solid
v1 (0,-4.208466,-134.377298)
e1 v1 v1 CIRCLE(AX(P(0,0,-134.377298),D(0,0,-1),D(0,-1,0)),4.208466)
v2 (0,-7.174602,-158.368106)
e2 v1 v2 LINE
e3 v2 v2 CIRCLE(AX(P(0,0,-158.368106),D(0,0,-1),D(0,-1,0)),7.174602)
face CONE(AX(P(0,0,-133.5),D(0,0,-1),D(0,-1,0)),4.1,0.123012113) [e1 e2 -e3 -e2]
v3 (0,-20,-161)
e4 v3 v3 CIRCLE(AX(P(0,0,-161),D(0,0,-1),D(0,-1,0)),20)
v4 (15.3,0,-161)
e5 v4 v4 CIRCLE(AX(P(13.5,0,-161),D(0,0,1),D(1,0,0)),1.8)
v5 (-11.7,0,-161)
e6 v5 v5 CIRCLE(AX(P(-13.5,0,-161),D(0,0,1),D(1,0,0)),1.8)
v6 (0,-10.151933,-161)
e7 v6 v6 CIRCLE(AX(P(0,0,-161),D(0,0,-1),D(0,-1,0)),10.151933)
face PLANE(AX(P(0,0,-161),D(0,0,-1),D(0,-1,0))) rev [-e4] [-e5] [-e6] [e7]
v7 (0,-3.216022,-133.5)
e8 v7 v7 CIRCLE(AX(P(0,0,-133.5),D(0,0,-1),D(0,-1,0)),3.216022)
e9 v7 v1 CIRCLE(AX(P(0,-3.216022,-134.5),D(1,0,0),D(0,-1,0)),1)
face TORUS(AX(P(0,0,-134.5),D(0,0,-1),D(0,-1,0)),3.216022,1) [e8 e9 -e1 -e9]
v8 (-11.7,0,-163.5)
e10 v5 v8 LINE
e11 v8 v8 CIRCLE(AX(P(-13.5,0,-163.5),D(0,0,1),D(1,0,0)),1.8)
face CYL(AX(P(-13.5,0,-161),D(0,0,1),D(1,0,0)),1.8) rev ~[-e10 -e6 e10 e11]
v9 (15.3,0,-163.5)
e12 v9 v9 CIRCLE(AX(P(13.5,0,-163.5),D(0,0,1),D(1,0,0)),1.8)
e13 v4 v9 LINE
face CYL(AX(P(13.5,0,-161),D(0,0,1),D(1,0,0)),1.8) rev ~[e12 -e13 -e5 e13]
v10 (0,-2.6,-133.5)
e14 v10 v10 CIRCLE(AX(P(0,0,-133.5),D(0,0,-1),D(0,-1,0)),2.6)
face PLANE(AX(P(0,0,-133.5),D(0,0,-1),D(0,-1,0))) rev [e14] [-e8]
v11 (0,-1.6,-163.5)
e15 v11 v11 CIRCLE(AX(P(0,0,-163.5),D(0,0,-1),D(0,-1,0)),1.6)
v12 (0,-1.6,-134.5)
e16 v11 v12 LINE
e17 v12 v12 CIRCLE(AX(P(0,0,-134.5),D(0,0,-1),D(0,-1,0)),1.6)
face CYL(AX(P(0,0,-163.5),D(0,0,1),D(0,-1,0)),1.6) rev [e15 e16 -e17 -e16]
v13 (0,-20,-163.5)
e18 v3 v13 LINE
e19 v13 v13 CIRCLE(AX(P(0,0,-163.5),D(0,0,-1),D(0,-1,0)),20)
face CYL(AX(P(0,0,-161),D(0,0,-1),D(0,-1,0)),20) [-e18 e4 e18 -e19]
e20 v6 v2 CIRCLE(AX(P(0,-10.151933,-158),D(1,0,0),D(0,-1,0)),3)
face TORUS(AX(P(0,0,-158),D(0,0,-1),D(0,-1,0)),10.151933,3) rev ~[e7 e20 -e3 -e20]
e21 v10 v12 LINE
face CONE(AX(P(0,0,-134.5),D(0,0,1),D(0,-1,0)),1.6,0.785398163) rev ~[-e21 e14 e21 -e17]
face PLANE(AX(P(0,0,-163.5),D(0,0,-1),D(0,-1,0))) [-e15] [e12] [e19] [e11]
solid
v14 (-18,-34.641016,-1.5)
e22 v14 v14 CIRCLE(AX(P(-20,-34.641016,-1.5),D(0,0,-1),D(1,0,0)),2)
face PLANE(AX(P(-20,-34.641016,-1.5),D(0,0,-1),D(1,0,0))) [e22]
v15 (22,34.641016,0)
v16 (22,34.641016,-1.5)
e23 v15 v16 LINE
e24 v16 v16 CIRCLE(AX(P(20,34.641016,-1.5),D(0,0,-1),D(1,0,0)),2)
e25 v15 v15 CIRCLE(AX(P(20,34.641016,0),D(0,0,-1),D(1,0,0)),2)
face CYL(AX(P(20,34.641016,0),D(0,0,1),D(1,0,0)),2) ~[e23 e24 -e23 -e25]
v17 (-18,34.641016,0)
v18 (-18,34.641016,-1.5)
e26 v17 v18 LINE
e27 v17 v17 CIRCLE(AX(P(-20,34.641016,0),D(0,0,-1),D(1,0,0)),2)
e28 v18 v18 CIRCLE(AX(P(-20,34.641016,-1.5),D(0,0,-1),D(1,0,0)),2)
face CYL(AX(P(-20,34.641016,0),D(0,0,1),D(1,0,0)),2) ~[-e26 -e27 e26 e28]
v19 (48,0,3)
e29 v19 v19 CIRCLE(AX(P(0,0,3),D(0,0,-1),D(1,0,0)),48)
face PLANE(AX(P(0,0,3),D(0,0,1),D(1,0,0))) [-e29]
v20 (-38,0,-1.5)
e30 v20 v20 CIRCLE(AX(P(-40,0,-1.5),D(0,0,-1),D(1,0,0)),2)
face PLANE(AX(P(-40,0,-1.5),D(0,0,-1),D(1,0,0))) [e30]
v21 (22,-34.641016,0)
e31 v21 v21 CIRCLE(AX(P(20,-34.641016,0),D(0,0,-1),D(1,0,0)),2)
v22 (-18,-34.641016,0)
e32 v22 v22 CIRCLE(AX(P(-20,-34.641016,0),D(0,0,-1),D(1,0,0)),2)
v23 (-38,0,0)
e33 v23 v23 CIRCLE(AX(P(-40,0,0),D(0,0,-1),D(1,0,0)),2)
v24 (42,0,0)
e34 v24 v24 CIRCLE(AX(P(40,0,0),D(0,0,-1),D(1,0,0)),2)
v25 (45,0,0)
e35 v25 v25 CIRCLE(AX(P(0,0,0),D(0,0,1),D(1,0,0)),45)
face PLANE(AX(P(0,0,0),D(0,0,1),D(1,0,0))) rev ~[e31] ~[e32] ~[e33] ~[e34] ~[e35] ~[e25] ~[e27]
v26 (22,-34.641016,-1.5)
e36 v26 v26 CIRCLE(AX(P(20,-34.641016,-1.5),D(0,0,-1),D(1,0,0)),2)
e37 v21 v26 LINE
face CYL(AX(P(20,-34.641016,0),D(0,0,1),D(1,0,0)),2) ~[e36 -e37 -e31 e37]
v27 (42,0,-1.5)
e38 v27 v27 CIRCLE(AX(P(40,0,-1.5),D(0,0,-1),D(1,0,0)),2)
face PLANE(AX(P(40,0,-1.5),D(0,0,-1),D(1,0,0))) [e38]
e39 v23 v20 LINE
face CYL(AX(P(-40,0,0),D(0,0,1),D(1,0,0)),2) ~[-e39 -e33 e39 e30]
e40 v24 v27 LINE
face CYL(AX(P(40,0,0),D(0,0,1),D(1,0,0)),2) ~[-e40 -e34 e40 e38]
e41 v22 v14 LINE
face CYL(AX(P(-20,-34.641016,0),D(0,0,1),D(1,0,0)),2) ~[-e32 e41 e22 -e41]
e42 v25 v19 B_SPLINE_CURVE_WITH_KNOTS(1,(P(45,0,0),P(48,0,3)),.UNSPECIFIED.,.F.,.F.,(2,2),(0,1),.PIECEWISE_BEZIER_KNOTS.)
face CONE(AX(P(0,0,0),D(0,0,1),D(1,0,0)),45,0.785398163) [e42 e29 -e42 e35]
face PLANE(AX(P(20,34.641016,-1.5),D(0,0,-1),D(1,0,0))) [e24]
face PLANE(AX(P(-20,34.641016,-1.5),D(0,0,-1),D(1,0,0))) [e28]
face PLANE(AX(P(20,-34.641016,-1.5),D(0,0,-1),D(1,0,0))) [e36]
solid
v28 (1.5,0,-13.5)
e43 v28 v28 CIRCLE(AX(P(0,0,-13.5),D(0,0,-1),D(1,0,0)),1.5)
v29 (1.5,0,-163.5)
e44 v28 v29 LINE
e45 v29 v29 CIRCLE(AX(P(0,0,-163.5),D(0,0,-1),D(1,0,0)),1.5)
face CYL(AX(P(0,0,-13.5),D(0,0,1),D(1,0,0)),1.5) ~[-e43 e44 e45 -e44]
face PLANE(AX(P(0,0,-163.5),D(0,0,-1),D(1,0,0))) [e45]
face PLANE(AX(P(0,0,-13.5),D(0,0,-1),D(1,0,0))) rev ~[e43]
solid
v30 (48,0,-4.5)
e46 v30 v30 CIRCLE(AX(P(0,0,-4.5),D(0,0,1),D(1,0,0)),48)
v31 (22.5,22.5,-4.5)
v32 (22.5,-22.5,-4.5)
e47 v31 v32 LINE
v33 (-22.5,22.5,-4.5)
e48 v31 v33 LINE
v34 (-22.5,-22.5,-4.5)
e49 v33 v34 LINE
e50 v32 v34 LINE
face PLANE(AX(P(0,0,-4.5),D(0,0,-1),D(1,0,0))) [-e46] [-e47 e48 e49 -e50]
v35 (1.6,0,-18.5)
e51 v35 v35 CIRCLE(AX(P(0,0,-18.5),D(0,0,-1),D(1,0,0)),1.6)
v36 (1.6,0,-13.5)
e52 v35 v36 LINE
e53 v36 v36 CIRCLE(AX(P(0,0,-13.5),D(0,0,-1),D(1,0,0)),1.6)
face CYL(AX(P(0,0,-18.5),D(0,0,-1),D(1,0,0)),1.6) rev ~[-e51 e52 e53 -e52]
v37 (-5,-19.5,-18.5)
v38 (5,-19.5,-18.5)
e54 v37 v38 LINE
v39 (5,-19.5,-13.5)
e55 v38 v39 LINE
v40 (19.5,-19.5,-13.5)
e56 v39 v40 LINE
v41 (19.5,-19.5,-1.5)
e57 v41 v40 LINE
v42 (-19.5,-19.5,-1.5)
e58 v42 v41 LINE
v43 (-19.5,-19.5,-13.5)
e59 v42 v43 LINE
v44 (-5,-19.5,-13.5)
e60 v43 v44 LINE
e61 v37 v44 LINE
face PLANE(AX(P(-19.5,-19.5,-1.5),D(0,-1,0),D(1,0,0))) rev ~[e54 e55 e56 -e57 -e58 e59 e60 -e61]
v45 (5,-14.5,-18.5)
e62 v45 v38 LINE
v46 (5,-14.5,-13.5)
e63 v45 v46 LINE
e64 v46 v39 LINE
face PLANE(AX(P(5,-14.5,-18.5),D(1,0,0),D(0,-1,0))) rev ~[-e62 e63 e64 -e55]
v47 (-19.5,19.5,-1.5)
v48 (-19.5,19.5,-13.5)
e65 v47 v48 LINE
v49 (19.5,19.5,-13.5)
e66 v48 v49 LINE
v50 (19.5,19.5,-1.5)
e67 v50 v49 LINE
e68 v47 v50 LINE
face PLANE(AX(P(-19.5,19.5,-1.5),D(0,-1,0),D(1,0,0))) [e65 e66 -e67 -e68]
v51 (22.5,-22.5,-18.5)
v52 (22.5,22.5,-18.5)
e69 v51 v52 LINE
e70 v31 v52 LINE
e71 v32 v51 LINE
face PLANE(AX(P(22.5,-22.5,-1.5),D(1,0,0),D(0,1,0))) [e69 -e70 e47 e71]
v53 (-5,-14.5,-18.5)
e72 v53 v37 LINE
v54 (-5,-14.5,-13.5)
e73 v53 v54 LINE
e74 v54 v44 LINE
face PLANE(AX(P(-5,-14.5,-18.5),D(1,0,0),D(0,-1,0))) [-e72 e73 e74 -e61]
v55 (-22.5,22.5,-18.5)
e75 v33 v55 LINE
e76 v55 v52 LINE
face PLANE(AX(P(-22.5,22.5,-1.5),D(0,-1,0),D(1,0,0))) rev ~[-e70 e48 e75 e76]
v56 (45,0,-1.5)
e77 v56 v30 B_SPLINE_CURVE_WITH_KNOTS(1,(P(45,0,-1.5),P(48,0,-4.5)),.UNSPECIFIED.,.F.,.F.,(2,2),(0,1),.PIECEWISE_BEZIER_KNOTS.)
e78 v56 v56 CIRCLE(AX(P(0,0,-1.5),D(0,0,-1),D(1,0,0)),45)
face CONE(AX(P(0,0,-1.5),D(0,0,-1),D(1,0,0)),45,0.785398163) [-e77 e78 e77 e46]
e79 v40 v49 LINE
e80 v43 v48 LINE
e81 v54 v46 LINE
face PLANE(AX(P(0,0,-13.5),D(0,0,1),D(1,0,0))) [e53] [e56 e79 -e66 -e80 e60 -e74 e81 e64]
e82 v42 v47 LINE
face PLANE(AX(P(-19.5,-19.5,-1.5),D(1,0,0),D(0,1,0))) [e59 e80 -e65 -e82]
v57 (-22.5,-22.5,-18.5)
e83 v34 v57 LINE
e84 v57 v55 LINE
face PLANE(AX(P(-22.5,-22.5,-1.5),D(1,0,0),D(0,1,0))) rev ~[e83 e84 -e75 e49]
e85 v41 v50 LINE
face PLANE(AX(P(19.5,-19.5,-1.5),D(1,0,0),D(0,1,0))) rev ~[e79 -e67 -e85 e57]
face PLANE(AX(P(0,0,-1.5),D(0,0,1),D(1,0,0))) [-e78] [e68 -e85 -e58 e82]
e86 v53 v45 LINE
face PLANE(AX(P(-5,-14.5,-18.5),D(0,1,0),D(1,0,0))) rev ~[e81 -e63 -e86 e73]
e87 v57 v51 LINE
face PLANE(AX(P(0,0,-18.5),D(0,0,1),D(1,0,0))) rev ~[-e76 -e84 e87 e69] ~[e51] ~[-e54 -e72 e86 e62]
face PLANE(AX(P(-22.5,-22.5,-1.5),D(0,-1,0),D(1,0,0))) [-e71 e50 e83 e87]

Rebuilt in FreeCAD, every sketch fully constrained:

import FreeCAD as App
import Part
import Sketcher

V = App.Vector


def edges_at(feature, points):
    """Names of the edges that pass closest to the given points."""
    edges = feature.Shape.Edges
    near = lambda p: min(range(len(edges)), key=lambda i: edges[i].distToShape(Part.Vertex(*p))[0])
    return sorted({f"Edge{near(p) + 1}" for p in points})


def add_polygon(sketch, points):
    """Adds a closed chain of lines whose ends are joined by coincident constraints."""
    first, n = sketch.GeometryCount, len(points)
    for a, b in zip(points, points[1:] + points[:1]):
        sketch.addGeometry(Part.LineSegment(App.Vector(*a, 0), App.Vector(*b, 0)), False)
    for i in range(n):
        sketch.addConstraint(Sketcher.Constraint("Coincident", first + i, 2, first + (i + 1) % n, 1))

doc = App.newDocument("Part")
params = doc.addObject("Spreadsheet::Sheet", "Params")
for row, (alias, value) in enumerate([
    ("sketch1_diameter", "90 mm"),
    ("pad1_length", "3 mm"),
    ("pad1_taper", "45 deg"),
    ("sketch2_diameter", "4 mm"),
    ("pad2_length", "1.5 mm"),
    ("sketch3_diameter", "90 mm"),
    ("pad3_length", "3 mm"),
    ("pad3_taper", "45 deg"),
    ("sketch4_width", "45 mm"),
    ("pad4_length", "17 mm"),
    ("sketch5_width", "39 mm"),
    ("pocket1_length", "12 mm"),
    ("sketch6_diameter", "3.2 mm"),
    ("sketch6_width", "10 mm"),
    ("sketch6_height", "5 mm"),
    ("sketch7_diameter", "3 mm"),
    ("pad5_length", "150 mm"),
    ("sketch8_height", "30 mm"),
    ("sketch8_width", "18.4 mm"),
    ("sketch8_width2", "2.5 mm"),
    ("sketch8_width3", "12.5 mm"),
    ("revolution_angle", "360 deg"),
    ("sketch9_diameter", "3.6 mm"),
    ("fillet_radius", "3 mm"),
    ("chamfer_size", "1 mm"),
    ("fillet2_radius", "1 mm"),
], start=1):
    params.set(f"A{row}", alias)
    params.set(f"B{row}", "=" + value)
    params.setAlias(f"B{row}", alias)

body = doc.addObject("PartDesign::Body", "Body")

# Sketch on XY plane
sketch1 = body.newObject("Sketcher::SketchObject", "Sketch")
sketch1.AttachmentSupport = (doc.getObject("XY_Plane"), [""])
sketch1.MapMode = "FlatFace"
sketch1.addGeometry(Part.Circle(V(0, 0, 0), V(0, 0, 1), 45), False)
sketch1.addConstraint([
    Sketcher.Constraint("Coincident", 0, 3, -1, 1),
    Sketcher.Constraint("Diameter", 0, 90.0),
])
sketch1.setExpression("Constraints[1]", "Params.sketch1_diameter")
pad1 = body.newObject("PartDesign::Pad", "Pad")
pad1.Profile = sketch1
pad1.setExpression("Length", "Params.pad1_length")
pad1.setExpression("TaperAngle", "Params.pad1_taper")

# Sketch on XY plane
sketch2 = body.newObject("Sketcher::SketchObject", "Sketch001")
sketch2.AttachmentSupport = (doc.getObject("XY_Plane"), [""])
sketch2.MapMode = "FlatFace"
sketch2.addGeometry([
    Part.Circle(V(40, 0, 0), V(0, 0, 1), 2),  # 0
    Part.Circle(V(20, -34.641016, 0), V(0, 0, 1), 2),  # 1
    Part.Circle(V(-20, -34.641016, 0), V(0, 0, 1), 2),  # 2
    Part.Circle(V(-40, 0, 0), V(0, 0, 1), 2),  # 3
    Part.Circle(V(-20, 34.641016, 0), V(0, 0, 1), 2),  # 4
    Part.Circle(V(20, 34.641016, 0), V(0, 0, 1), 2),  # 5
], False)
sketch2.addConstraint([
    Sketcher.Constraint("Equal", 0, 1),
    Sketcher.Constraint("Equal", 1, 2),
    Sketcher.Constraint("Equal", 2, 3),
    Sketcher.Constraint("Equal", 3, 4),
    Sketcher.Constraint("Equal", 4, 5),
    Sketcher.Constraint("Symmetric", 0, 3, 3, 3, -1, 1),
    Sketcher.Constraint("Symmetric", 1, 3, 4, 3, -1, 1),
    Sketcher.Constraint("Symmetric", 2, 3, 5, 3, -1, 1),
    Sketcher.Constraint("Symmetric", 1, 3, 2, 3, -2),
    Sketcher.Constraint("PointOnObject", 0, 3, -1),
    Sketcher.Constraint("Diameter", 0, 4.0),
    Sketcher.Constraint("DistanceX", -1, 1, 0, 3, 40.0),
    Sketcher.Constraint("DistanceX", -1, 1, 1, 3, 20.0),
    Sketcher.Constraint("DistanceY", 1, 3, -1, 1, 34.641016),
])
sketch2.setExpression("Constraints[10]", "Params.sketch2_diameter")
pad2 = body.newObject("PartDesign::Pad", "Pad001")
pad2.Profile = sketch2
pad2.setExpression("Length", "Params.pad2_length")
pad2.Reversed = True
body2 = doc.addObject("PartDesign::Body", "Body001")

# Sketch on XY plane
sketch3 = body2.newObject("Sketcher::SketchObject", "Sketch002")
sketch3.AttachmentSupport = (doc.getObject("XY_Plane001"), [""])
sketch3.MapMode = "FlatFace"
sketch3.AttachmentOffset = App.Placement(V(0, 0, -1.5), App.Rotation())
sketch3.addGeometry(Part.Circle(V(0, 0, 0), V(0, 0, 1), 45), False)
sketch3.addConstraint([
    Sketcher.Constraint("Coincident", 0, 3, -1, 1),
    Sketcher.Constraint("Diameter", 0, 90.0),
])
sketch3.setExpression("Constraints[1]", "Params.sketch3_diameter")
pad3 = body2.newObject("PartDesign::Pad", "Pad002")
pad3.Profile = sketch3
pad3.setExpression("Length", "Params.pad3_length")
pad3.Reversed = True
pad3.setExpression("TaperAngle", "Params.pad3_taper")

# Sketch on XY plane
sketch4 = body2.newObject("Sketcher::SketchObject", "Sketch003")
sketch4.AttachmentSupport = (doc.getObject("XY_Plane001"), [""])
sketch4.MapMode = "FlatFace"
sketch4.AttachmentOffset = App.Placement(V(0, 0, -1.5), App.Rotation())
add_polygon(sketch4, [(-22.5, 22.5), (-22.5, -22.5), (22.5, -22.5), (22.5, 22.5)])  # lines 0-3
sketch4.addConstraint([
    Sketcher.Constraint("Vertical", 0),
    Sketcher.Constraint("Horizontal", 1),
    Sketcher.Constraint("Vertical", 2),
    Sketcher.Constraint("Horizontal", 3),
    Sketcher.Constraint("Symmetric", 0, 2, 2, 2, -1, 1),
    Sketcher.Constraint("Equal", 3, 0),
    Sketcher.Constraint("DistanceX", 1, 1, 1, 2, 45.0),
])
sketch4.setExpression("Constraints[10]", "Params.sketch4_width")
pad4 = body2.newObject("PartDesign::Pad", "Pad003")
pad4.Profile = sketch4
pad4.setExpression("Length", "Params.pad4_length")
pad4.Reversed = True

# Sketch on XY plane
sketch5 = body2.newObject("Sketcher::SketchObject", "Sketch004")
sketch5.AttachmentSupport = (doc.getObject("XY_Plane001"), [""])
sketch5.MapMode = "FlatFace"
sketch5.AttachmentOffset = App.Placement(V(0, 0, -1.5), App.Rotation())
add_polygon(sketch5, [(-19.5, 19.5), (-19.5, -19.5), (19.5, -19.5), (19.5, 19.5)])  # lines 0-3
sketch5.addConstraint([
    Sketcher.Constraint("Vertical", 0),
    Sketcher.Constraint("Horizontal", 1),
    Sketcher.Constraint("Vertical", 2),
    Sketcher.Constraint("Horizontal", 3),
    Sketcher.Constraint("Symmetric", 0, 2, 2, 2, -1, 1),
    Sketcher.Constraint("Equal", 3, 0),
    Sketcher.Constraint("DistanceX", 1, 1, 1, 2, 39.0),
])
sketch5.setExpression("Constraints[10]", "Params.sketch5_width")
pocket1 = body2.newObject("PartDesign::Pocket", "Pocket")
pocket1.Profile = sketch5
pocket1.setExpression("Length", "Params.pocket1_length")

# Sketch on XY plane
sketch6 = body2.newObject("Sketcher::SketchObject", "Sketch005")
sketch6.AttachmentSupport = (doc.getObject("XY_Plane001"), [""])
sketch6.MapMode = "FlatFace"
sketch6.AttachmentOffset = App.Placement(V(0, 0, -18.5), App.Rotation())
add_polygon(sketch6, [(-5, -19.5), (-5, -14.5), (5, -14.5), (5, -19.5)])  # lines 0-3
sketch6.addGeometry(Part.Circle(V(0, 0, 0), V(0, 0, 1), 1.6), False)  # 4
sketch6.addConstraint([
    Sketcher.Constraint("Vertical", 0),
    Sketcher.Constraint("Horizontal", 1),
    Sketcher.Constraint("Vertical", 2),
    Sketcher.Constraint("Horizontal", 3),
    Sketcher.Constraint("Coincident", 4, 3, -1, 1),
    Sketcher.Constraint("Diameter", 4, 3.2),
    Sketcher.Constraint("DistanceX", 1, 1, 1, 2, 10.0),
    Sketcher.Constraint("DistanceY", 0, 1, 0, 2, 5.0),
    Sketcher.Constraint("DistanceX", 0, 2, -1, 1, 5.0),
    Sketcher.Constraint("DistanceY", 0, 2, -1, 1, 14.5),
])
sketch6.setExpression("Constraints[9]", "Params.sketch6_diameter")
sketch6.setExpression("Constraints[10]", "Params.sketch6_width")
sketch6.setExpression("Constraints[11]", "Params.sketch6_height")
pocket2 = body2.newObject("PartDesign::Pocket", "Pocket001")
pocket2.Profile = sketch6
pocket2.Type = "ThroughAll"
pocket2.Reversed = True
body3 = doc.addObject("PartDesign::Body", "Body002")

# Sketch on XY plane
sketch7 = body3.newObject("Sketcher::SketchObject", "Sketch006")
sketch7.AttachmentSupport = (doc.getObject("XY_Plane002"), [""])
sketch7.MapMode = "FlatFace"
sketch7.AttachmentOffset = App.Placement(V(0, 0, -13.5), App.Rotation())
sketch7.addGeometry(Part.Circle(V(0, 0, 0), V(0, 0, 1), 1.5), False)
sketch7.addConstraint([
    Sketcher.Constraint("Coincident", 0, 3, -1, 1),
    Sketcher.Constraint("Diameter", 0, 3.0),
])
sketch7.setExpression("Constraints[1]", "Params.sketch7_diameter")
pad5 = body3.newObject("PartDesign::Pad", "Pad004")
pad5.Profile = sketch7
pad5.setExpression("Length", "Params.pad5_length")
pad5.Reversed = True
body4 = doc.addObject("PartDesign::Body", "Body003")

# Sketch on YZ plane
sketch8 = body4.newObject("Sketcher::SketchObject", "Sketch007")
sketch8.AttachmentSupport = (doc.getObject("YZ_Plane003"), [""])
sketch8.MapMode = "FlatFace"
add_polygon(sketch8, [(-20, -161), (-20, -163.5), (-1.6, -163.5), (-1.6, -133.5), (-4.1, -133.5), (-7.5, -161)])  # lines 0-5
sketch8.addConstraint([
    Sketcher.Constraint("Vertical", 0),
    Sketcher.Constraint("Horizontal", 1),
    Sketcher.Constraint("Vertical", 2),
    Sketcher.Constraint("Horizontal", 3),
    Sketcher.Constraint("Horizontal", 5),
    Sketcher.Constraint("Equal", 3, 0),
    Sketcher.Constraint("DistanceY", 2, 1, 2, 2, 30.0),
    Sketcher.Constraint("DistanceX", 1, 1, 1, 2, 18.4),
    Sketcher.Constraint("DistanceX", 3, 2, 3, 1, 2.5),
    Sketcher.Constraint("DistanceX", 5, 2, 5, 1, 12.5),
    Sketcher.Constraint("DistanceX", 0, 2, -1, 1, 20.0),
    Sketcher.Constraint("DistanceY", 4, 2, -1, 1, 161.0),
])
sketch8.setExpression("Constraints[12]", "Params.sketch8_height")
sketch8.setExpression("Constraints[13]", "Params.sketch8_width")
sketch8.setExpression("Constraints[14]", "Params.sketch8_width2")
sketch8.setExpression("Constraints[15]", "Params.sketch8_width3")
revolution = body4.newObject("PartDesign::Revolution", "Revolution")
revolution.Profile = sketch8
revolution.ReferenceAxis = (sketch8, ["V_Axis"])
revolution.setExpression("Angle", "Params.revolution_angle")

# Sketch on XY plane
sketch9 = body4.newObject("Sketcher::SketchObject", "Sketch008")
sketch9.AttachmentSupport = (doc.getObject("XY_Plane003"), [""])
sketch9.MapMode = "FlatFace"
sketch9.AttachmentOffset = App.Placement(V(0, 0, -161), App.Rotation())
sketch9.addGeometry([
    Part.Circle(V(13.5, 0, 0), V(0, 0, 1), 1.8),
    Part.Circle(V(-13.5, 0, 0), V(0, 0, 1), 1.8),
], False)
sketch9.addConstraint([
    Sketcher.Constraint("Equal", 0, 1),
    Sketcher.Constraint("Symmetric", 0, 3, 1, 3, -1, 1),
    Sketcher.Constraint("PointOnObject", 0, 3, -1),
    Sketcher.Constraint("Diameter", 0, 3.6),
    Sketcher.Constraint("DistanceX", 1, 3, 0, 3, 27.0),
])
sketch9.setExpression("Constraints[3]", "Params.sketch9_diameter")
pocket3 = body4.newObject("PartDesign::Pocket", "Pocket002")
pocket3.Profile = sketch9
pocket3.Type = "ThroughAll"
doc.recompute()

fillet = body4.newObject("PartDesign::Fillet", "Fillet")
fillet.Base = (pocket3, edges_at(pocket3, [(0, 7.5, -161)]))
fillet.setExpression("Radius", "Params.fillet_radius")
doc.recompute()

chamfer = body4.newObject("PartDesign::Chamfer", "Chamfer")
chamfer.Base = (fillet, edges_at(fillet, [(0, 1.6, -133.5)]))
chamfer.setExpression("Size", "Params.chamfer_size")
doc.recompute()

fillet2 = body4.newObject("PartDesign::Fillet", "Fillet001")
fillet2.Base = (chamfer, edges_at(chamfer, [(0, 4.1, -133.5)]))
fillet2.setExpression("Radius", "Params.fillet2_radius")

doc.recompute()
